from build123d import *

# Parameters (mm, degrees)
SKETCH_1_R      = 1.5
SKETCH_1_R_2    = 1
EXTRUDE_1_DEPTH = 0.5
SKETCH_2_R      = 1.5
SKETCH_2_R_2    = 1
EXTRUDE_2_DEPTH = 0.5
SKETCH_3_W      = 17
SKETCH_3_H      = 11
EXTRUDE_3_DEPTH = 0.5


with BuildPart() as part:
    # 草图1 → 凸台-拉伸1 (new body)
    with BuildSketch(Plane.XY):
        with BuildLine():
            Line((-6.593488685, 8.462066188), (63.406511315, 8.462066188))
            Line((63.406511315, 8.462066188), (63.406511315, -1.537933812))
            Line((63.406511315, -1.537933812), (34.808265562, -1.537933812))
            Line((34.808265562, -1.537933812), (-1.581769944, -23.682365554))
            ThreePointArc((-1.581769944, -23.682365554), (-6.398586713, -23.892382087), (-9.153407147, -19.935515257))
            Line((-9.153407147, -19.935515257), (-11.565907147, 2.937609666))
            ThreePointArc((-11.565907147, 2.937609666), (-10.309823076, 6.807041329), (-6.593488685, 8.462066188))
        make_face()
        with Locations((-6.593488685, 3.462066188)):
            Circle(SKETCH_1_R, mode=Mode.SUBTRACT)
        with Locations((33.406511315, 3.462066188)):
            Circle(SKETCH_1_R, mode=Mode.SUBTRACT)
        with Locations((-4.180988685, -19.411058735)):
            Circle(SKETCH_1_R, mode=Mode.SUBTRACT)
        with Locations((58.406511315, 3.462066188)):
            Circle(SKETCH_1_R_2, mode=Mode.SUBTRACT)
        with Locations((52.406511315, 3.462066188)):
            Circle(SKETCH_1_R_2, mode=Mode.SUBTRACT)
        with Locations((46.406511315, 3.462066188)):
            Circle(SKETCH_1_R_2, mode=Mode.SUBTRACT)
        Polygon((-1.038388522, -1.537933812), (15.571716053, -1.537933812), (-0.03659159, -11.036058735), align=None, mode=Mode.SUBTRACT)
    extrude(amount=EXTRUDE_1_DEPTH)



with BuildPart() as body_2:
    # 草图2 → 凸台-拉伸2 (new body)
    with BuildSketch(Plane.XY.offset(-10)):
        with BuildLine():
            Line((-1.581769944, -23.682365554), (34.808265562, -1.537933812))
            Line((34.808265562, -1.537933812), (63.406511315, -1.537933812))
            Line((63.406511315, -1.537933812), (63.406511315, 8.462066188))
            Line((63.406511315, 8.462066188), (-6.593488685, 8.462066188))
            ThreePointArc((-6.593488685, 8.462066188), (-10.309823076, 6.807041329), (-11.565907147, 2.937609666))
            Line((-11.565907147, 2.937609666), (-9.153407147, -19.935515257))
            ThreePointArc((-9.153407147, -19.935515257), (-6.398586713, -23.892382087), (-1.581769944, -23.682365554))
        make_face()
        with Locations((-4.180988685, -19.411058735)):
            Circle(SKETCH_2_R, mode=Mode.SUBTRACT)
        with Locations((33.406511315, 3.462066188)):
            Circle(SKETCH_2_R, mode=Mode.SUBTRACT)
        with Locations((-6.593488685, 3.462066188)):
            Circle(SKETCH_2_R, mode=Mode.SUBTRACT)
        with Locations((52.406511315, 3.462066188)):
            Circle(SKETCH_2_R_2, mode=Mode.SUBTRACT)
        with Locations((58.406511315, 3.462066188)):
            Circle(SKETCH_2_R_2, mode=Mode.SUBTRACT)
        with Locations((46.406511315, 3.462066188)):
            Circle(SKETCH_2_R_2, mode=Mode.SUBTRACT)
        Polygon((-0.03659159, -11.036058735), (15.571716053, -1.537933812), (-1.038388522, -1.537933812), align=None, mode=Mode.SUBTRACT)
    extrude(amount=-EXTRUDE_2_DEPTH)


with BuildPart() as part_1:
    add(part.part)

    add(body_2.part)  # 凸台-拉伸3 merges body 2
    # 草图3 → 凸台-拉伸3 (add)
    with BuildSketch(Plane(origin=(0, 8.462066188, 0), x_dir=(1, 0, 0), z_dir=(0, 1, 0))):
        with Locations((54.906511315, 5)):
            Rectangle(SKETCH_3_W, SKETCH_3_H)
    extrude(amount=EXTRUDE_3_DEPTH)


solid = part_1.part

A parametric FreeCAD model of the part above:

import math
import FreeCAD as App
import Part
import Sketcher

doc = App.newDocument("Part")
body = doc.addObject("PartDesign::Body", "Body")

# Sketch on XY plane
sketch1 = body.newObject("Sketcher::SketchObject", "Sketch")
sketch1.AttachmentSupport = (doc.getObject("XY_Plane"), [""])
sketch1.MapMode = "FlatFace"
sketch1.addGeometry([
    Part.LineSegment(App.Vector(63.4, 8.5, 0), App.Vector(-6.6, 8.5, 0)),  # 0
    Part.ArcOfCircle(Part.Circle(App.Vector(-6.6, 3.5, 0), App.Vector(0, 0, 1), 5), math.radians(90), math.radians(186)),  # 1
    Part.LineSegment(App.Vector(-11.6, 2.9, 0), App.Vector(-9.2, -19.9, 0)),  # 2
    Part.ArcOfCircle(Part.Circle(App.Vector(-4.2, -19.4, 0), App.Vector(0, 0, 1), 5), math.radians(-174), math.radians(-59)),  # 3
    Part.LineSegment(App.Vector(-1.6, -23.7, 0), App.Vector(34.8, -1.5, 0)),  # 4
    Part.LineSegment(App.Vector(34.8, -1.5, 0), App.Vector(63.4, -1.5, 0)),  # 5
    Part.LineSegment(App.Vector(63.4, -1.5, 0), App.Vector(63.4, 8.5, 0)),  # 6
    Part.Circle(App.Vector(-4.2, -19.4, 0), App.Vector(0, 0, 1), 1.5),  # 7
    Part.Circle(App.Vector(58.4, 3.5, 0), App.Vector(0, 0, 1), 1),  # 8
    Part.Circle(App.Vector(52.4, 3.5, 0), App.Vector(0, 0, 1), 1),  # 9
    Part.Circle(App.Vector(46.4, 3.5, 0), App.Vector(0, 0, 1), 1),  # 10
    Part.Circle(App.Vector(33.4, 3.5, 0), App.Vector(0, 0, 1), 1.5),  # 11
    Part.LineSegment(App.Vector(-1, -1.5, 0), App.Vector(15.6, -1.5, 0)),  # 12
    Part.LineSegment(App.Vector(15.6, -1.5, 0), App.Vector(0, -11, 0)),  # 13
    Part.LineSegment(App.Vector(0, -11, 0), App.Vector(-1, -1.5, 0)),  # 14
    Part.Circle(App.Vector(-6.6, 3.5, 0), App.Vector(0, 0, 1), 1.5),  # 15
], False)
sketch1.addConstraint([
    Sketcher.Constraint("Tangent", 0, 2, 1, 1),
    Sketcher.Constraint("Tangent", 1, 2, 2, 1),
    Sketcher.Constraint("Tangent", 2, 2, 3, 1),
    Sketcher.Constraint("Tangent", 3, 2, 4, 1),
    Sketcher.Constraint("Coincident", 4, 2, 5, 1),
    Sketcher.Constraint("Coincident", 5, 2, 6, 1),
    Sketcher.Constraint("Coincident", 6, 2, 0, 1),
    Sketcher.Constraint("Coincident", 12, 2, 13, 1),
    Sketcher.Constraint("Coincident", 13, 2, 14, 1),
    Sketcher.Constraint("Coincident", 14, 2, 12, 1),
    Sketcher.Constraint("Horizontal", 0),
    Sketcher.Constraint("Horizontal", 5),
    Sketcher.Constraint("Vertical", 6),
    Sketcher.Constraint("Horizontal", 12),
    Sketcher.Constraint("Coincident", 7, 3, 3, 3),
    Sketcher.Constraint("Coincident", 15, 3, 1, 3),
    Sketcher.Constraint("Equal", 1, 3),
    Sketcher.Constraint("Equal", 8, 9),
    Sketcher.Constraint("Equal", 9, 10),
    Sketcher.Constraint("Equal", 7, 11),
    Sketcher.Constraint("Equal", 11, 15),
    Sketcher.Constraint("Parallel", 4, 13),
    Sketcher.Constraint("Parallel", 2, 14),
    Sketcher.Constraint("Horizontal", 1, 3, 8, 3),
    Sketcher.Constraint("Horizontal", 8, 3, 9, 3),
    Sketcher.Constraint("Horizontal", 9, 3, 10, 3),
    Sketcher.Constraint("Horizontal", 10, 3, 11, 3),
    Sketcher.Constraint("Horizontal", 5, 2, 12, 2),
    Sketcher.Constraint("Diameter", 7, 3.0),
    Sketcher.Constraint("Diameter", 8, 2.0),
    Sketcher.Constraint("Radius", 1, 5.0),
    Sketcher.Constraint("DistanceX", 0, 2, 0, 1, 70.0),
    Sketcher.Constraint("DistanceY", 6, 1, 6, 2, 10.0),
    Sketcher.Constraint("Distance", 2, 23.0),
    Sketcher.Constraint("DistanceX", 1, 3, 8, 3, 65.0),
    Sketcher.Constraint("DistanceX", 9, 3, 8, 3, 6.0),
    Sketcher.Constraint("DistanceX", 10, 3, 9, 3, 6.0),
    Sketcher.Constraint("DistanceX", 11, 3, 10, 3, 13.0),
    Sketcher.Constraint("DistanceY", 3, 3, 13, 2, 8.375),
    Sketcher.Constraint("DistanceX", 1, 3, 3, 3, 2.4125),
    Sketcher.Constraint("DistanceX", 1, 3, 14, 2, 5.5551),
    Sketcher.Constraint("DistanceX", 5, 1, 5, 2, 28.598246),
    Sketcher.Constraint("DistanceX", 1, 3, -1, 1, 6.593489),
    Sketcher.Constraint("DistanceY", 3, 3, -1, 1, 19.411059),
])
pad1 = body.newObject("PartDesign::Pad", "Pad")
pad1.Profile = sketch1
pad1.Length = 0.5
body2 = doc.addObject("PartDesign::Body", "Body001")

# Sketch on XY plane
sketch2 = body2.newObject("Sketcher::SketchObject", "Sketch001")
sketch2.AttachmentSupport = (doc.getObject("XY_Plane001"), [""])
sketch2.MapMode = "FlatFace"
sketch2.AttachmentOffset = App.Placement(App.Vector(0, 0, -10), App.Rotation())
sketch2.addGeometry([
    Part.LineSegment(App.Vector(-1.6, -23.7, 0), App.Vector(34.8, -1.5, 0)),  # 0
    Part.LineSegment(App.Vector(34.8, -1.5, 0), App.Vector(63.4, -1.5, 0)),  # 1
    Part.LineSegment(App.Vector(63.4, -1.5, 0), App.Vector(63.4, 8.5, 0)),  # 2
    Part.LineSegment(App.Vector(63.4, 8.5, 0), App.Vector(-6.6, 8.5, 0)),  # 3
    Part.ArcOfCircle(Part.Circle(App.Vector(-6.6, 3.5, 0), App.Vector(0, 0, 1), 5), math.radians(90), math.radians(186)),  # 4
    Part.LineSegment(App.Vector(-11.6, 2.9, 0), App.Vector(-9.2, -19.9, 0)),  # 5
    Part.ArcOfCircle(Part.Circle(App.Vector(-4.2, -19.4, 0), App.Vector(0, 0, 1), 5), math.radians(-174), math.radians(-59)),  # 6
    Part.Circle(App.Vector(-4.2, -19.4, 0), App.Vector(0, 0, 1), 1.5),  # 7
    Part.LineSegment(App.Vector(15.6, -1.5, 0), App.Vector(0, -11, 0)),  # 8
    Part.LineSegment(App.Vector(0, -11, 0), App.Vector(-1, -1.5, 0)),  # 9
    Part.LineSegment(App.Vector(-1, -1.5, 0), App.Vector(15.6, -1.5, 0)),  # 10
    Part.Circle(App.Vector(-6.6, 3.5, 0), App.Vector(0, 0, 1), 1.5),  # 11
    Part.Circle(App.Vector(33.4, 3.5, 0), App.Vector(0, 0, 1), 1.5),  # 12
    Part.Circle(App.Vector(46.4, 3.5, 0), App.Vector(0, 0, 1), 1),  # 13
    Part.Circle(App.Vector(52.4, 3.5, 0), App.Vector(0, 0, 1), 1),  # 14
    Part.Circle(App.Vector(58.4, 3.5, 0), App.Vector(0, 0, 1), 1),  # 15
], False)
sketch2.addConstraint([
    Sketcher.Constraint("Coincident", 0, 2, 1, 1),
    Sketcher.Constraint("Coincident", 1, 2, 2, 1),
    Sketcher.Constraint("Coincident", 2, 2, 3, 1),
    Sketcher.Constraint("Tangent", 3, 2, 4, 1),
    Sketcher.Constraint("Tangent", 4, 2, 5, 1),
    Sketcher.Constraint("Tangent", 5, 2, 6, 1),
    Sketcher.Constraint("Tangent", 6, 2, 0, 1),
    Sketcher.Constraint("Coincident", 8, 2, 9, 1),
    Sketcher.Constraint("Coincident", 9, 2, 10, 1),
    Sketcher.Constraint("Coincident", 10, 2, 8, 1),
    Sketcher.Constraint("Horizontal", 1),
    Sketcher.Constraint("Vertical", 2),
    Sketcher.Constraint("Horizontal", 3),
    Sketcher.Constraint("Horizontal", 10),
    Sketcher.Constraint("Coincident", 7, 3, 6, 3),
    Sketcher.Constraint("Coincident", 11, 3, 4, 3),
    Sketcher.Constraint("Equal", 4, 6),
    Sketcher.Constraint("Equal", 7, 11),
    Sketcher.Constraint("Equal", 11, 12),
    Sketcher.Constraint("Equal", 13, 14),
    Sketcher.Constraint("Equal", 14, 15),
    Sketcher.Constraint("Parallel", 0, 8),
    Sketcher.Constraint("Parallel", 5, 9),
    Sketcher.Constraint("Horizontal", 11, 3, 12, 3),
    Sketcher.Constraint("Horizontal", 12, 3, 13, 3),
    Sketcher.Constraint("Horizontal", 13, 3, 14, 3),
    Sketcher.Constraint("Horizontal", 14, 3, 15, 3),
    Sketcher.Constraint("Horizontal", 1, 2, 9, 2),
    Sketcher.Constraint("Diameter", 7, 3.0),
    Sketcher.Constraint("Diameter", 13, 2.0),
    Sketcher.Constraint("Radius", 4, 5.0),
    Sketcher.Constraint("DistanceX", 3, 2, 3, 1, 70.0),
    Sketcher.Constraint("DistanceY", 2, 1, 2, 2, 10.0),
    Sketcher.Constraint("Distance", 5, 23.0),
    Sketcher.Constraint("DistanceX", 4, 3, 12, 3, 40.0),
    Sketcher.Constraint("DistanceX", 12, 3, 13, 3, 13.0),
    Sketcher.Constraint("DistanceX", 13, 3, 14, 3, 6.0),
    Sketcher.Constraint("DistanceX", 14, 3, 15, 3, 6.0),
    Sketcher.Constraint("DistanceY", 6, 3, 8, 2, 8.375),
    Sketcher.Constraint("DistanceX", 4, 3, 6, 3, 2.4125),
    Sketcher.Constraint("DistanceX", 4, 3, 9, 2, 5.5551),
    Sketcher.Constraint("DistanceX", 1, 1, 1, 2, 28.598246),
    Sketcher.Constraint("DistanceX", 4, 3, -1, 1, 6.593489),
    Sketcher.Constraint("DistanceY", 6, 3, -1, 1, 19.411059),
])
pad2 = body2.newObject("PartDesign::Pad", "Pad001")
pad2.Profile = sketch2
pad2.Length = 0.5
pad2.Reversed = True
body.AllowCompound = True
doc.recompute()

boolean = body.newObject("PartDesign::Boolean", "Boolean")
boolean.Type = "Fuse"
boolean.addObjects([body2])

# Sketch on XZ plane
sketch3 = body.newObject("Sketcher::SketchObject", "Sketch002")
sketch3.AttachmentSupport = (doc.getObject("XZ_Plane"), [""])
sketch3.MapMode = "FlatFace"
sketch3.AttachmentOffset = App.Placement(App.Vector(0, 0, -8.462066), App.Rotation())
sketch3.addGeometry([
    Part.LineSegment(App.Vector(46, -10, 0), App.Vector(46, 0, 0)),
    Part.LineSegment(App.Vector(46, 0, 0), App.Vector(63, 0, 0)),
    Part.LineSegment(App.Vector(63, 0, 0), App.Vector(63, -10, 0)),
    Part.LineSegment(App.Vector(63, -10, 0), App.Vector(46, -10, 0)),
], False)
sketch3.addConstraint([
    Sketcher.Constraint("Coincident", 0, 2, 1, 1),
    Sketcher.Constraint("Coincident", 1, 2, 2, 1),
    Sketcher.Constraint("Coincident", 2, 2, 3, 1),
    Sketcher.Constraint("Coincident", 3, 2, 0, 1),
    Sketcher.Constraint("Vertical", 0),
    Sketcher.Constraint("Horizontal", 1),
    Sketcher.Constraint("Vertical", 2),
    Sketcher.Constraint("Horizontal", 3),
    Sketcher.Constraint("DistanceX", 1, 1, 1, 2, 17.0),
    Sketcher.Constraint("DistanceY", 0, 1, 0, 2, 11.0),
    Sketcher.Constraint("DistanceY", -1, 1, 0, 2, 0.5),
    Sketcher.Constraint("DistanceX", -1, 1, 0, 2, 46.406511),
])
pad3 = body.newObject("PartDesign::Pad", "Pad002")
pad3.Profile = sketch3
pad3.Length = 0.5
pad3.Reversed = True

doc.recompute()
